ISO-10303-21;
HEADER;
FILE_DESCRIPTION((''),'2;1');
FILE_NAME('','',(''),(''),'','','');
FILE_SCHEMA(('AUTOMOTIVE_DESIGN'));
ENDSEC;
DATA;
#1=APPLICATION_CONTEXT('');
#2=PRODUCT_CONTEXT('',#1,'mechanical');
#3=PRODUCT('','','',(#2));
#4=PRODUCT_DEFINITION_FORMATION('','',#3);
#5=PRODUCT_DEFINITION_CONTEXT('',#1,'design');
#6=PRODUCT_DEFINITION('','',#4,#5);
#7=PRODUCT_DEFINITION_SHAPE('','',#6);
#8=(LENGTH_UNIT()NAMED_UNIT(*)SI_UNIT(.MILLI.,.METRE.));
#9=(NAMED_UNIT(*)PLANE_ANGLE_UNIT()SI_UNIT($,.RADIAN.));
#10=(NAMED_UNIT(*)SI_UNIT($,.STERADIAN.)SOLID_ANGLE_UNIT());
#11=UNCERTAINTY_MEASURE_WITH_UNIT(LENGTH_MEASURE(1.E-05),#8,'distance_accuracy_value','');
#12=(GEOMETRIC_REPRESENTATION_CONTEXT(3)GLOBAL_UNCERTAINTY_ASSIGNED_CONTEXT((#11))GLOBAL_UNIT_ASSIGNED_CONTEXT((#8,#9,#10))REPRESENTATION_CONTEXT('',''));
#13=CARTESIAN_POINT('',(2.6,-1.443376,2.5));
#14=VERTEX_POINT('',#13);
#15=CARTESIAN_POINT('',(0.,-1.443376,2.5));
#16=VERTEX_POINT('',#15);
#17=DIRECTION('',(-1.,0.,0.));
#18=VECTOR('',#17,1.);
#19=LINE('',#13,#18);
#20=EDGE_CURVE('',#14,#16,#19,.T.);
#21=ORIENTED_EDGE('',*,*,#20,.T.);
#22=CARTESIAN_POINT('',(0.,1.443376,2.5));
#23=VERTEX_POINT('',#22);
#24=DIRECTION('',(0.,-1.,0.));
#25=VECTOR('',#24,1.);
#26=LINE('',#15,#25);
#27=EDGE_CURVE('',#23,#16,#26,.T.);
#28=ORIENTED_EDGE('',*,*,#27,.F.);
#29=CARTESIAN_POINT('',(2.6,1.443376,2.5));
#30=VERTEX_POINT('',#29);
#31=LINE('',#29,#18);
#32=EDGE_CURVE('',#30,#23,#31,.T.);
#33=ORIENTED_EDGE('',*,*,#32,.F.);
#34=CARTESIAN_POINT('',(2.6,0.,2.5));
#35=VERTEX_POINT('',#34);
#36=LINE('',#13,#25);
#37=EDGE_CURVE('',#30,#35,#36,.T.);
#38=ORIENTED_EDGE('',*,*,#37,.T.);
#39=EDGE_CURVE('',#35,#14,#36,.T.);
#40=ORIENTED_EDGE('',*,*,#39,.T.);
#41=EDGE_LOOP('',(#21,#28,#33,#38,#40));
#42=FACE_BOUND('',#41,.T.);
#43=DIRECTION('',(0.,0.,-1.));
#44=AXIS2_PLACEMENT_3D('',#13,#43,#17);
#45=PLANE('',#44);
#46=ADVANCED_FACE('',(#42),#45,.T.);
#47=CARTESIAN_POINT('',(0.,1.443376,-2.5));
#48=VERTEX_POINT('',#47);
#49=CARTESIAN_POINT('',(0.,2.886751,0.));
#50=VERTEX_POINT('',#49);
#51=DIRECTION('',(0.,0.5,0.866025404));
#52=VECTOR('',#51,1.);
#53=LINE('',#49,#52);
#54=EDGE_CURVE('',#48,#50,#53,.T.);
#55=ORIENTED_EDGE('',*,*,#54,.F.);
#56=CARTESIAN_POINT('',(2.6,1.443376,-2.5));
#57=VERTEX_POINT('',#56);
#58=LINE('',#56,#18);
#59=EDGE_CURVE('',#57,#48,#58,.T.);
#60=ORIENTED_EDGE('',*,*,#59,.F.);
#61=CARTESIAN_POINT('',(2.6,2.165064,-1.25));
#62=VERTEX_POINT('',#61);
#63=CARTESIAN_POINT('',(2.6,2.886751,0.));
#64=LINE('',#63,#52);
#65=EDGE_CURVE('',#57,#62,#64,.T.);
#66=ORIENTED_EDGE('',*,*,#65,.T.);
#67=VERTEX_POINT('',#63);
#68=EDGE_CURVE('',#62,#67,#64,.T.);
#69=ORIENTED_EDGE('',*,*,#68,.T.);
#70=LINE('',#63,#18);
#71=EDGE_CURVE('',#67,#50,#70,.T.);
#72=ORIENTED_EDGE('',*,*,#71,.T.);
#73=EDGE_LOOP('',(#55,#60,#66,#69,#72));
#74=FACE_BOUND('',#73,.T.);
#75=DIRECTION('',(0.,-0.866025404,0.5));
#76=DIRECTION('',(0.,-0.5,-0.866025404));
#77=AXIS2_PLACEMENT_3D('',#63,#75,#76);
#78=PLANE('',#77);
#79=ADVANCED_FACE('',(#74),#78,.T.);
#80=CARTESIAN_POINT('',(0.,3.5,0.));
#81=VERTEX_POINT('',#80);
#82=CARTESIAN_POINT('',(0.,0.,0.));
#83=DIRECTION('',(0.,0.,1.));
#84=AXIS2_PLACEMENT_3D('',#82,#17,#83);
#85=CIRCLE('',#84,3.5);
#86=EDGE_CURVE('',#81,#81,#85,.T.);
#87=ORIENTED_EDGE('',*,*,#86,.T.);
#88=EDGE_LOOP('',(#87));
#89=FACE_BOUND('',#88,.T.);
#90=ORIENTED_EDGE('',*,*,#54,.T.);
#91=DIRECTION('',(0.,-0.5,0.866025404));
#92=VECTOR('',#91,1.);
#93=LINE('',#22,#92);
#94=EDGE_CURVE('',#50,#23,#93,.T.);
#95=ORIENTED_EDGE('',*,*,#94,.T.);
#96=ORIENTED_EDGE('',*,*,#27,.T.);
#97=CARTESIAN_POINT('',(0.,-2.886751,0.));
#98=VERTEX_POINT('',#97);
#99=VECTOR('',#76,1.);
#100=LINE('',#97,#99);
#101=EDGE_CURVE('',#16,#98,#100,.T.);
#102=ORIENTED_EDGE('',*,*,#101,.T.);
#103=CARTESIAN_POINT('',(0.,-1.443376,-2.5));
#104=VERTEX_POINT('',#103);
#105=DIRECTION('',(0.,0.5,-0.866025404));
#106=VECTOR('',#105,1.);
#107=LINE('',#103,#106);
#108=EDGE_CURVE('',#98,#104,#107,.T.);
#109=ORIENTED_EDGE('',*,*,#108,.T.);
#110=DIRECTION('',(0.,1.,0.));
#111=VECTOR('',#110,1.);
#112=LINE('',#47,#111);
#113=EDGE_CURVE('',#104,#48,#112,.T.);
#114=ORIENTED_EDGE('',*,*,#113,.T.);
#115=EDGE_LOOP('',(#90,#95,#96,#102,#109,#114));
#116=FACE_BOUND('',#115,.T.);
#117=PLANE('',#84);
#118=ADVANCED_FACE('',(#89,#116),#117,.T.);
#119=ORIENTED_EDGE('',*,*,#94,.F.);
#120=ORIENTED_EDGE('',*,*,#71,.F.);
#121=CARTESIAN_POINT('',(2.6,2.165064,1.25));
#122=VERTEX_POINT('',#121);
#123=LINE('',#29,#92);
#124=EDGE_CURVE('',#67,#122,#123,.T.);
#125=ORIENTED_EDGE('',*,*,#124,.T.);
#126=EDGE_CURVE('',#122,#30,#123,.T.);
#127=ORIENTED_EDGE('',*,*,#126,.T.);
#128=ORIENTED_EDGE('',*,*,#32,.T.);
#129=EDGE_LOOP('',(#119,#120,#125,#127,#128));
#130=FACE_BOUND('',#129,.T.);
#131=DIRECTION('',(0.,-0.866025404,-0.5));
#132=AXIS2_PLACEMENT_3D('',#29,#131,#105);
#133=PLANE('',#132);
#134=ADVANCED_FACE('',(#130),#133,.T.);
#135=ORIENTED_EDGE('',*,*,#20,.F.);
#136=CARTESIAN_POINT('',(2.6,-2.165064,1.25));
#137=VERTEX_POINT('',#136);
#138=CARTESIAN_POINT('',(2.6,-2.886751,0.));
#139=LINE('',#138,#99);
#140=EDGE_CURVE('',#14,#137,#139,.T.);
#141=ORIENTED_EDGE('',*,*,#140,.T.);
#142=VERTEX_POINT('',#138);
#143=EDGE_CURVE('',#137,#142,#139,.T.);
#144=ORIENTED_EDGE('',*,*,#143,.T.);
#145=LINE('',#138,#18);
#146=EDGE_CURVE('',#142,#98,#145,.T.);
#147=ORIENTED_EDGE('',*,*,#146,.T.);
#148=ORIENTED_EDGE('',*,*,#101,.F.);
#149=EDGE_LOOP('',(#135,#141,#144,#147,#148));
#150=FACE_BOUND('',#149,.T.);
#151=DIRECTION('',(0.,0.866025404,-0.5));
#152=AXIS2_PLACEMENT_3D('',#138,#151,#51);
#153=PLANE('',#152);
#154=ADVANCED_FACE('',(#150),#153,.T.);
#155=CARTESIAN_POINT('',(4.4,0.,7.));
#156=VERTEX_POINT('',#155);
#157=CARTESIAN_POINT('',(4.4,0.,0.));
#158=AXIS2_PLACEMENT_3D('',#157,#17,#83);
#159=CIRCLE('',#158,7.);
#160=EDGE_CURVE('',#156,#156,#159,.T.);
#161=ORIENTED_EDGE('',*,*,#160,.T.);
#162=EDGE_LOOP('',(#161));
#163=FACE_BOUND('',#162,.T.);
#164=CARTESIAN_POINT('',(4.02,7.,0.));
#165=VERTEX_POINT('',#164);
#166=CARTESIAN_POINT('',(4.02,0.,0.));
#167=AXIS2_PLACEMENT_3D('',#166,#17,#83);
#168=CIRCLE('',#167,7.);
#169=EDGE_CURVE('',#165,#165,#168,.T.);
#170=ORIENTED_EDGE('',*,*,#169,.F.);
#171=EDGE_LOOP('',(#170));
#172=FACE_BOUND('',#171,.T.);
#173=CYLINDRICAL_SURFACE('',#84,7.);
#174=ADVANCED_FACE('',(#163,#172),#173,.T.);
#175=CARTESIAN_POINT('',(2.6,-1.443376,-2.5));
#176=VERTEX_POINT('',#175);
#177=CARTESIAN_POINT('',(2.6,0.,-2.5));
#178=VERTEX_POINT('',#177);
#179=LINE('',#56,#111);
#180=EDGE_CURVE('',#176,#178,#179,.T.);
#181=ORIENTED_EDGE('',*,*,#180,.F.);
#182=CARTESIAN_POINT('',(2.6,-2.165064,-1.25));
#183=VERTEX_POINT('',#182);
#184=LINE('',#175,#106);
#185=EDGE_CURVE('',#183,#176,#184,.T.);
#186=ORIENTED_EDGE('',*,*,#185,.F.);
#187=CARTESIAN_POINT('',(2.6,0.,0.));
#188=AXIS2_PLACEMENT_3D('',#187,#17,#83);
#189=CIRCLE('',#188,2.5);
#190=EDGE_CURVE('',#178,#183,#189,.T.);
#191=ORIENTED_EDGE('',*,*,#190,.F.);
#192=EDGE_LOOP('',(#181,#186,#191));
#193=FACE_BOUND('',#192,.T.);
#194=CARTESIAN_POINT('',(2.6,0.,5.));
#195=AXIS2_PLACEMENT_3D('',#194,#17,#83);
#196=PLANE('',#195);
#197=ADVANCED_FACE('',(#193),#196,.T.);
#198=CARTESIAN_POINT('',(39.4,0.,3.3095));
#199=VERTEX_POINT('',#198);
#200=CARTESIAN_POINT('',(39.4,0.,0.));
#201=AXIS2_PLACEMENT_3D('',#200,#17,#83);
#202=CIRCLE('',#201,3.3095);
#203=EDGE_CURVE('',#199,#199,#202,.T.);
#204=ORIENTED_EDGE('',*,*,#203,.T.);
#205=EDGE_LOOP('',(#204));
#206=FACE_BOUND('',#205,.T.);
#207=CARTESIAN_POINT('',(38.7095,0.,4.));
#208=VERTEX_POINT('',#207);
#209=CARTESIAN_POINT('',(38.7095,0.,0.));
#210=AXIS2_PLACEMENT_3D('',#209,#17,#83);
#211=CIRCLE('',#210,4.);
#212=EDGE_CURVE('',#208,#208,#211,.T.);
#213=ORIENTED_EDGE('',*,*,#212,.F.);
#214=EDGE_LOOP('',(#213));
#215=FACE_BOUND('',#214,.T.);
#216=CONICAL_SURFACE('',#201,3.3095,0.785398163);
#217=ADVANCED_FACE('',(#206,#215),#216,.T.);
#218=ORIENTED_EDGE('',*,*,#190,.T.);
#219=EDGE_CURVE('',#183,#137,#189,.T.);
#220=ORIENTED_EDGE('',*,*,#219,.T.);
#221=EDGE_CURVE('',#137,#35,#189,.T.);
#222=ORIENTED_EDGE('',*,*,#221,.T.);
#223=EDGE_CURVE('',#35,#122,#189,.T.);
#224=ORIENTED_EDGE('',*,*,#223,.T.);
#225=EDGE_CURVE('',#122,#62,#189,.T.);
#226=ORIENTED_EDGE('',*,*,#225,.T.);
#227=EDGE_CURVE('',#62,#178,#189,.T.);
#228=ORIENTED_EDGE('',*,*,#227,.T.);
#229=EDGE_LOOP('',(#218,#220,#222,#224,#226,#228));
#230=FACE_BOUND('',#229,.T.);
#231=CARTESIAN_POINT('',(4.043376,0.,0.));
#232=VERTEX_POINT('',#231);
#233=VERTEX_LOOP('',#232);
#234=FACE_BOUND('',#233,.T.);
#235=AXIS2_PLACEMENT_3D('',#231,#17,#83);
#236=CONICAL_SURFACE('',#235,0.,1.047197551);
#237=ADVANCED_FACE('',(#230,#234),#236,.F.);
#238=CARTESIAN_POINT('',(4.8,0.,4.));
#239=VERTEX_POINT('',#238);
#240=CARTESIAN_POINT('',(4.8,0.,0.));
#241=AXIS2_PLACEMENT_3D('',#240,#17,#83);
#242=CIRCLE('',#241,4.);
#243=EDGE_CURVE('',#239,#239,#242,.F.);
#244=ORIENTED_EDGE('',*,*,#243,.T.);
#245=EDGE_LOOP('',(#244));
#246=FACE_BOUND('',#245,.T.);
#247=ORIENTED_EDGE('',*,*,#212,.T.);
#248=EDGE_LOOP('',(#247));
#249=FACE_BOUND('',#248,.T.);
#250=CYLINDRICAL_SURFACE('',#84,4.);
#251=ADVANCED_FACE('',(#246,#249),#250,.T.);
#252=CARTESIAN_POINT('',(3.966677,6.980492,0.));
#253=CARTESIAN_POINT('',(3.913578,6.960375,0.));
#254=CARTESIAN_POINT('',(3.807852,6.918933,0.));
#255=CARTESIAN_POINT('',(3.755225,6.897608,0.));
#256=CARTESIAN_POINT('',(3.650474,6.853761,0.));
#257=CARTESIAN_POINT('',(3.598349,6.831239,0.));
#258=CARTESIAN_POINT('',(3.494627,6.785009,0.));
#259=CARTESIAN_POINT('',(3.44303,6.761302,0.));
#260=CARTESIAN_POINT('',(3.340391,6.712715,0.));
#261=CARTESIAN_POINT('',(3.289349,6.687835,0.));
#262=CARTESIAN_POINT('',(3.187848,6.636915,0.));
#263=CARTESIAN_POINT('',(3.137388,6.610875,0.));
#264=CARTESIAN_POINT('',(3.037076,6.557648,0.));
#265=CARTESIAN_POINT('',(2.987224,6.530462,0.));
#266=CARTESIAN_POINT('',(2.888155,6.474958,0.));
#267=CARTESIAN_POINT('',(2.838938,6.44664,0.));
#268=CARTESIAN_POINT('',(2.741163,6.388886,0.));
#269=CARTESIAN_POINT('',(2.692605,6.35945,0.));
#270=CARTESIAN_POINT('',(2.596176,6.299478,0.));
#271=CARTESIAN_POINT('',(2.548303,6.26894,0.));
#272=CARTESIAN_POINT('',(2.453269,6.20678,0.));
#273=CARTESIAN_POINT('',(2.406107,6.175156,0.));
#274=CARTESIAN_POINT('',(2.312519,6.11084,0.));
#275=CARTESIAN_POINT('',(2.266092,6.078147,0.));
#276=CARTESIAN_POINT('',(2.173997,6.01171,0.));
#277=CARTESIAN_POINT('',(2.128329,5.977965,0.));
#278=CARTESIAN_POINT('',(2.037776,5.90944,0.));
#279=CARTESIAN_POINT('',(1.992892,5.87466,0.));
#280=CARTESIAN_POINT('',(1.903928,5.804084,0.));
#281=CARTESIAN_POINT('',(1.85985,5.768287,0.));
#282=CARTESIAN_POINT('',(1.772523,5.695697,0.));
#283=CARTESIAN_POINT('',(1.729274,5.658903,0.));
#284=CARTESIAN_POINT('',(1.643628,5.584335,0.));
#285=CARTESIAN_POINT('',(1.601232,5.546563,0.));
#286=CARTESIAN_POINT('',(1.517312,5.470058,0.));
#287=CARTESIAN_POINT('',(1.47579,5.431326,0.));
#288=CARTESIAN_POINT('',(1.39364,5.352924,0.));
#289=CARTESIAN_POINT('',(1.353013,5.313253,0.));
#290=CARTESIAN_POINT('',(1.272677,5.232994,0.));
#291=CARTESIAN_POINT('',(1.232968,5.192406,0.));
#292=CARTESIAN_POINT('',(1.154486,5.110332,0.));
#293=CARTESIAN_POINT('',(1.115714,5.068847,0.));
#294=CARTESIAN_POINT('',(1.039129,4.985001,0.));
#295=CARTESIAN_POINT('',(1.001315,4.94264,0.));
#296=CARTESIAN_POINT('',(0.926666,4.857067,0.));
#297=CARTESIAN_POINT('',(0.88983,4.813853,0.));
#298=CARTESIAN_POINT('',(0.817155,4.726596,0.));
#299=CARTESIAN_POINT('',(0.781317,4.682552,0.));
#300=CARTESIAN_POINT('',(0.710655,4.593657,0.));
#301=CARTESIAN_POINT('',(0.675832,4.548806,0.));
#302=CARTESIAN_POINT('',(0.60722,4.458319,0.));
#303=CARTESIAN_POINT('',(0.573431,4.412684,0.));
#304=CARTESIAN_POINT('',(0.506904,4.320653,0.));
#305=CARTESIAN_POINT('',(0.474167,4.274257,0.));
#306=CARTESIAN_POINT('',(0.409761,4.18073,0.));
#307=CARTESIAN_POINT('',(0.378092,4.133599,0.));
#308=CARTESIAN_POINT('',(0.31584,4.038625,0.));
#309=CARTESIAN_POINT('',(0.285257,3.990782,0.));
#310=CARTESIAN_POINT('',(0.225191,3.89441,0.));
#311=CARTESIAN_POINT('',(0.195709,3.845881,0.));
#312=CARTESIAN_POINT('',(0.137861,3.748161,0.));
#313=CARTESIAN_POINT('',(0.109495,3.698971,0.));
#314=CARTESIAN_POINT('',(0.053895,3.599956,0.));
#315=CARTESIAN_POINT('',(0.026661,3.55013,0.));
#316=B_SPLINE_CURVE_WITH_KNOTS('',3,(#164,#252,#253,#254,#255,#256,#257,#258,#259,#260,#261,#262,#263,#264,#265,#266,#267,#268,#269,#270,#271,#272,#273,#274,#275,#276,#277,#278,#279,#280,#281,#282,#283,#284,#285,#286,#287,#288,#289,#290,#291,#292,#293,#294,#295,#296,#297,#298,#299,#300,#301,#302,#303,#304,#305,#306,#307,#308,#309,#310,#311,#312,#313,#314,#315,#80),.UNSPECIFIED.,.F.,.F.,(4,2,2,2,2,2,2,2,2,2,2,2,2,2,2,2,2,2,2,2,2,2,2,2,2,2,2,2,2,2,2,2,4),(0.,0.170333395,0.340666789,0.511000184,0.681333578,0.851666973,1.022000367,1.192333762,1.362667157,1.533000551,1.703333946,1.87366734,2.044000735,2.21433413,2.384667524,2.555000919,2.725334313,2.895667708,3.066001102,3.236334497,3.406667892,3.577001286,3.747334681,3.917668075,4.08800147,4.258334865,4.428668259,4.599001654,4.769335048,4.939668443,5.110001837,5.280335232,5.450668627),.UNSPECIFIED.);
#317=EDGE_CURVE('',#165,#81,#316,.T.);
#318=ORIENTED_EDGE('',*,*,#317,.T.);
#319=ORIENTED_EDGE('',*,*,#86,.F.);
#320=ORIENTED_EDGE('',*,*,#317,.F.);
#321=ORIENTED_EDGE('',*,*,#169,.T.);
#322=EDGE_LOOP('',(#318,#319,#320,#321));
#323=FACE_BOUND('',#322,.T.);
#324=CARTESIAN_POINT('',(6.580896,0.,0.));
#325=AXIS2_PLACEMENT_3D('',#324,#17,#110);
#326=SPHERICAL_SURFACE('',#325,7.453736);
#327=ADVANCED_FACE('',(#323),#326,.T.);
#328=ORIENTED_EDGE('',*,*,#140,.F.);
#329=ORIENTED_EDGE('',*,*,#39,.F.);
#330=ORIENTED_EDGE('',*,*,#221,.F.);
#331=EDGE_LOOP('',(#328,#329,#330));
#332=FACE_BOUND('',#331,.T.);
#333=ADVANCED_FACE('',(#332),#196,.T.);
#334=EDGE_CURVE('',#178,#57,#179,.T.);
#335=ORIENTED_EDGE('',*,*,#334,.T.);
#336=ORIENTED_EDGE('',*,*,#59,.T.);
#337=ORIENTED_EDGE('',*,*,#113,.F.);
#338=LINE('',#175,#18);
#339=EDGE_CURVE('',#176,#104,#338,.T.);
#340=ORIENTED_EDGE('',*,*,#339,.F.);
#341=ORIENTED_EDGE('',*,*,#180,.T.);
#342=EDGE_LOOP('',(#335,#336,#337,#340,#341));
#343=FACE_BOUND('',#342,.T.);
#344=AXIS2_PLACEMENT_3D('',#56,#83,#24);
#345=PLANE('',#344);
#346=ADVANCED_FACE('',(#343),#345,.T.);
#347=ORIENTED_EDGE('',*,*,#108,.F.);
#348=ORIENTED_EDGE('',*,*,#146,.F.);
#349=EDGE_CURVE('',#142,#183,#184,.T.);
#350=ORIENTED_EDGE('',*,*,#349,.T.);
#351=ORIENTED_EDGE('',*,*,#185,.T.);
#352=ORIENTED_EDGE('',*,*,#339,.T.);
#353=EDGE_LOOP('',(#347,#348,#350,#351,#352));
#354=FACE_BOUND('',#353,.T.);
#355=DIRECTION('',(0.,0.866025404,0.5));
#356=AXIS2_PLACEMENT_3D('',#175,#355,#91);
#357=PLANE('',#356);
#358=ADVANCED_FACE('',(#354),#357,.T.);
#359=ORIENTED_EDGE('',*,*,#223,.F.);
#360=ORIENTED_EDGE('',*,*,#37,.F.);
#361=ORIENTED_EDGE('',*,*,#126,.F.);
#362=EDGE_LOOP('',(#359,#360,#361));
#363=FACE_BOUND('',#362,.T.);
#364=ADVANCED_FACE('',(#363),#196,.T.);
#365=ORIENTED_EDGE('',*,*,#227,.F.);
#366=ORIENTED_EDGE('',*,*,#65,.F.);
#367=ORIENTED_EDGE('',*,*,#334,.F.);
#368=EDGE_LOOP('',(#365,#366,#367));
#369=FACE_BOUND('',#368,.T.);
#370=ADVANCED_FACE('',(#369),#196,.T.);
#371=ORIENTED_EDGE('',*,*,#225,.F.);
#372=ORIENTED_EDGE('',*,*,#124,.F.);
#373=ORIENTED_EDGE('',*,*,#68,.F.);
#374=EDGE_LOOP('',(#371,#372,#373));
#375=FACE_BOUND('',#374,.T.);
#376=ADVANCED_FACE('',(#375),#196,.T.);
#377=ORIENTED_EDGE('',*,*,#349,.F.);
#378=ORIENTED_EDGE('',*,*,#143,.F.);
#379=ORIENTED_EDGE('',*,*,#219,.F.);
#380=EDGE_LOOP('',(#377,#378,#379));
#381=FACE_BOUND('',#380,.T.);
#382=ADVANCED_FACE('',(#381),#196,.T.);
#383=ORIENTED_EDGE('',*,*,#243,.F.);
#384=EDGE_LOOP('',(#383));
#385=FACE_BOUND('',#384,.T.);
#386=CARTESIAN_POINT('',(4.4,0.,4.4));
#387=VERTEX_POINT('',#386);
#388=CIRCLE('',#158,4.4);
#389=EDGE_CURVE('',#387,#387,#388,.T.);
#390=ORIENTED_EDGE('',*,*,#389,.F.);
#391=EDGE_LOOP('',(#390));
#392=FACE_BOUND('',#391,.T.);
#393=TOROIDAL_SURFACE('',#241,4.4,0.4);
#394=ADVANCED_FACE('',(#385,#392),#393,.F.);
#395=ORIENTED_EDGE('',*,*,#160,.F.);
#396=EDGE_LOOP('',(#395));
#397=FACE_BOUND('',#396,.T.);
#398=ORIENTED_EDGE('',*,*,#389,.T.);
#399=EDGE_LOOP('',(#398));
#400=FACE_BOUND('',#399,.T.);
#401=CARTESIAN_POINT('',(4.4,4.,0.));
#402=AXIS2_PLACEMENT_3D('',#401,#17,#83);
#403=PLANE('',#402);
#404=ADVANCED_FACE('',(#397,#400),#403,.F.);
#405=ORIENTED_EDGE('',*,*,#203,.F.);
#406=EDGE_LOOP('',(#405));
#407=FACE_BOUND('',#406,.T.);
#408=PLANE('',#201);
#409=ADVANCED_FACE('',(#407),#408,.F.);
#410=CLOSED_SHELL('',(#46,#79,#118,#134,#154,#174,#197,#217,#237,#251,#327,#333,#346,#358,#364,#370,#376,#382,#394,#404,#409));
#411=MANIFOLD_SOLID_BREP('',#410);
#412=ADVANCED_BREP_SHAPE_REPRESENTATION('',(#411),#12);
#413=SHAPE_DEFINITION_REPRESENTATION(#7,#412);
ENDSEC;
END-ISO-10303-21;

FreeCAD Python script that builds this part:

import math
import FreeCAD as App
import Part
import Sketcher
from FreeCAD import Vector
Q = App.Units.Quantity


def edges_at(feature, points):
    """Names of the edges that pass closest to the given points."""
    edges = feature.Shape.Edges
    near = lambda p: min(range(len(edges)), key=lambda i: edges[i].distToShape(Part.Vertex(*p))[0])
    return sorted({f"Edge{near(p) + 1}" for p in points})


def add_polygon(sketch, points):
    """Adds a closed chain of lines whose ends are joined by coincident constraints."""
    first, n = sketch.GeometryCount, len(points)
    for a, b in zip(points, points[1:] + points[:1]):
        sketch.addGeometry(Part.LineSegment(App.Vector(*a, 0), App.Vector(*b, 0)), False)
    for i in range(n):
        sketch.addConstraint(Sketcher.Constraint("Coincident", first + i, 2, first + (i + 1) % n, 1))

doc = App.newDocument("Part")
body = doc.addObject("PartDesign::Body", "Body")

sketch1 = body.newObject("Sketcher::SketchObject", "Sketch")
sketch1.AttachmentSupport = (doc.getObject("XY_Plane"), [""])
sketch1.MapMode = "FlatFace"
sketch1.addGeometry([
    Part.LineSegment(Vector(39.4, 0, 0), Vector(39.4, 3.31, 0)),
    Part.LineSegment(Vector(39.4, 3.31, 0), Vector(38.71, 4, 0)),
    Part.LineSegment(Vector(38.71, 4, 0), Vector(4.4, 4, 0)),
    Part.LineSegment(Vector(4.4, 4, 0), Vector(4.4, 7, 0)),
    Part.LineSegment(Vector(4.4, 7, 0), Vector(4.02, 7, 0)),
    Part.ArcOfCircle(Part.Circle(Vector(6.58, 0, 0), Vector(0, 0, 1), 7.45), math.radians(110), math.radians(152)),
    Part.LineSegment(Vector(0, 3.5, 0), Vector(0, 0, 0)),
    Part.LineSegment(Vector(0, 0, 0), Vector(39.4, 0, 0)),
], False)
sketch1.addConstraint([
    Sketcher.Constraint("Coincident", 0, 2, 1, 1),
    Sketcher.Constraint("Coincident", 1, 2, 2, 1),
    Sketcher.Constraint("Coincident", 2, 2, 3, 1),
    Sketcher.Constraint("Coincident", 3, 2, 4, 1),
    Sketcher.Constraint("Coincident", 4, 2, 5, 1),
    Sketcher.Constraint("Coincident", 5, 2, 6, 1),
    Sketcher.Constraint("Coincident", 6, 2, 7, 1),
    Sketcher.Constraint("Coincident", 7, 2, 0, 1),
    Sketcher.Constraint("Vertical", 0),
    Sketcher.Constraint("Horizontal", 2),
    Sketcher.Constraint("Vertical", 3),
    Sketcher.Constraint("Horizontal", 4),
    Sketcher.Constraint("Vertical", 6),
    Sketcher.Constraint("Horizontal", 7),
    Sketcher.Constraint("Coincident", 6, 2, -1, 1),
    Sketcher.Constraint("PointOnObject", 5, 3, -1),
    Sketcher.Constraint("DistanceY", 3, 1, 3, 2, 3.0),
    Sketcher.Constraint("Angle", 1, Q("135 deg")),
    Sketcher.Constraint("DistanceX", 7, 1, 7, 2, 39.4),
    Sketcher.Constraint("DistanceY", 6, 2, 6, 1, 3.5),
    Sketcher.Constraint("DistanceY", -1, 1, 1, 2, 4.0),
    Sketcher.Constraint("DistanceX", 2, 2, 0, 2, 35.0),
    Sketcher.Constraint("DistanceX", 4, 2, 4, 1, 0.38),
    Sketcher.Constraint("DistanceX", 2, 2, 2, 1, 34.3095),
])
revolution = body.newObject("PartDesign::Revolution", "Revolution")
revolution.Profile = sketch1
revolution.ReferenceAxis = (sketch1, ["H_Axis"])
revolution.Angle = 360
doc.recompute()

fillet = body.newObject("PartDesign::Fillet", "Fillet")
fillet.Base = (revolution, edges_at(revolution, [(4.4, 0, -4)]))
fillet.Radius = 0.4

sketch2 = body.newObject("Sketcher::SketchObject", "Sketch001")
sketch2.AttachmentSupport = (doc.getObject("XY_Plane"), [""])
sketch2.MapMode = "FlatFace"
add_polygon(sketch2, [(2.6, 2.5), (0, 2.5), (0, 0), (4, 0)])
sketch2.addConstraint([
    Sketcher.Constraint("Horizontal", 0),
    Sketcher.Constraint("Vertical", 1),
    Sketcher.Constraint("Horizontal", 2),
    Sketcher.Constraint("Coincident", 1, 2, -1, 1),
    Sketcher.Constraint("Angle", 3, Q("120 deg")),
    Sketcher.Constraint("DistanceX", 0, 2, 0, 1, 2.6),
    Sketcher.Constraint("DistanceY", 1, 2, 1, 1, 2.5),
])
groove = body.newObject("PartDesign::Groove", "Groove")
groove.Profile = sketch2
groove.ReferenceAxis = (sketch2, ["H_Axis"])
groove.Angle = 360

sketch3 = body.newObject("Sketcher::SketchObject", "Sketch002")
sketch3.AttachmentSupport = (doc.getObject("YZ_Plane"), [""])
sketch3.MapMode = "FlatFace"
add_polygon(sketch3, [(1.4, 2.5), (-1.4, 2.5), (-2.9, 0), (-1.4, -2.5), (1.4, -2.5), (2.9, 0)])
sketch3.addConstraint([
    Sketcher.Constraint("Horizontal", 0),
    Sketcher.Constraint("Horizontal", 3),
    Sketcher.Constraint("Symmetric", 0, 2, 3, 2, -1, 1),
    Sketcher.Constraint("Symmetric", 1, 2, 4, 2, -1, 1),
    Sketcher.Constraint("PointOnObject", 1, 2, -1),
    Sketcher.Constraint("Parallel", 2, 5),
    Sketcher.Constraint("Vertical", 0, 2, 2, 2),
    Sketcher.Constraint("Angle", 1, Q("-120 deg")),
    Sketcher.Constraint("DistanceY", 2, 2, 0, 2, 5.0),
    Sketcher.Constraint("DistanceX", 0, 2, 0, 1, 2.886751),
])
pocket1 = body.newObject("PartDesign::Pocket", "Pocket")
pocket1.Profile = sketch3
pocket1.Length = 2.6
pocket1.Reversed = True

doc.recompute()
